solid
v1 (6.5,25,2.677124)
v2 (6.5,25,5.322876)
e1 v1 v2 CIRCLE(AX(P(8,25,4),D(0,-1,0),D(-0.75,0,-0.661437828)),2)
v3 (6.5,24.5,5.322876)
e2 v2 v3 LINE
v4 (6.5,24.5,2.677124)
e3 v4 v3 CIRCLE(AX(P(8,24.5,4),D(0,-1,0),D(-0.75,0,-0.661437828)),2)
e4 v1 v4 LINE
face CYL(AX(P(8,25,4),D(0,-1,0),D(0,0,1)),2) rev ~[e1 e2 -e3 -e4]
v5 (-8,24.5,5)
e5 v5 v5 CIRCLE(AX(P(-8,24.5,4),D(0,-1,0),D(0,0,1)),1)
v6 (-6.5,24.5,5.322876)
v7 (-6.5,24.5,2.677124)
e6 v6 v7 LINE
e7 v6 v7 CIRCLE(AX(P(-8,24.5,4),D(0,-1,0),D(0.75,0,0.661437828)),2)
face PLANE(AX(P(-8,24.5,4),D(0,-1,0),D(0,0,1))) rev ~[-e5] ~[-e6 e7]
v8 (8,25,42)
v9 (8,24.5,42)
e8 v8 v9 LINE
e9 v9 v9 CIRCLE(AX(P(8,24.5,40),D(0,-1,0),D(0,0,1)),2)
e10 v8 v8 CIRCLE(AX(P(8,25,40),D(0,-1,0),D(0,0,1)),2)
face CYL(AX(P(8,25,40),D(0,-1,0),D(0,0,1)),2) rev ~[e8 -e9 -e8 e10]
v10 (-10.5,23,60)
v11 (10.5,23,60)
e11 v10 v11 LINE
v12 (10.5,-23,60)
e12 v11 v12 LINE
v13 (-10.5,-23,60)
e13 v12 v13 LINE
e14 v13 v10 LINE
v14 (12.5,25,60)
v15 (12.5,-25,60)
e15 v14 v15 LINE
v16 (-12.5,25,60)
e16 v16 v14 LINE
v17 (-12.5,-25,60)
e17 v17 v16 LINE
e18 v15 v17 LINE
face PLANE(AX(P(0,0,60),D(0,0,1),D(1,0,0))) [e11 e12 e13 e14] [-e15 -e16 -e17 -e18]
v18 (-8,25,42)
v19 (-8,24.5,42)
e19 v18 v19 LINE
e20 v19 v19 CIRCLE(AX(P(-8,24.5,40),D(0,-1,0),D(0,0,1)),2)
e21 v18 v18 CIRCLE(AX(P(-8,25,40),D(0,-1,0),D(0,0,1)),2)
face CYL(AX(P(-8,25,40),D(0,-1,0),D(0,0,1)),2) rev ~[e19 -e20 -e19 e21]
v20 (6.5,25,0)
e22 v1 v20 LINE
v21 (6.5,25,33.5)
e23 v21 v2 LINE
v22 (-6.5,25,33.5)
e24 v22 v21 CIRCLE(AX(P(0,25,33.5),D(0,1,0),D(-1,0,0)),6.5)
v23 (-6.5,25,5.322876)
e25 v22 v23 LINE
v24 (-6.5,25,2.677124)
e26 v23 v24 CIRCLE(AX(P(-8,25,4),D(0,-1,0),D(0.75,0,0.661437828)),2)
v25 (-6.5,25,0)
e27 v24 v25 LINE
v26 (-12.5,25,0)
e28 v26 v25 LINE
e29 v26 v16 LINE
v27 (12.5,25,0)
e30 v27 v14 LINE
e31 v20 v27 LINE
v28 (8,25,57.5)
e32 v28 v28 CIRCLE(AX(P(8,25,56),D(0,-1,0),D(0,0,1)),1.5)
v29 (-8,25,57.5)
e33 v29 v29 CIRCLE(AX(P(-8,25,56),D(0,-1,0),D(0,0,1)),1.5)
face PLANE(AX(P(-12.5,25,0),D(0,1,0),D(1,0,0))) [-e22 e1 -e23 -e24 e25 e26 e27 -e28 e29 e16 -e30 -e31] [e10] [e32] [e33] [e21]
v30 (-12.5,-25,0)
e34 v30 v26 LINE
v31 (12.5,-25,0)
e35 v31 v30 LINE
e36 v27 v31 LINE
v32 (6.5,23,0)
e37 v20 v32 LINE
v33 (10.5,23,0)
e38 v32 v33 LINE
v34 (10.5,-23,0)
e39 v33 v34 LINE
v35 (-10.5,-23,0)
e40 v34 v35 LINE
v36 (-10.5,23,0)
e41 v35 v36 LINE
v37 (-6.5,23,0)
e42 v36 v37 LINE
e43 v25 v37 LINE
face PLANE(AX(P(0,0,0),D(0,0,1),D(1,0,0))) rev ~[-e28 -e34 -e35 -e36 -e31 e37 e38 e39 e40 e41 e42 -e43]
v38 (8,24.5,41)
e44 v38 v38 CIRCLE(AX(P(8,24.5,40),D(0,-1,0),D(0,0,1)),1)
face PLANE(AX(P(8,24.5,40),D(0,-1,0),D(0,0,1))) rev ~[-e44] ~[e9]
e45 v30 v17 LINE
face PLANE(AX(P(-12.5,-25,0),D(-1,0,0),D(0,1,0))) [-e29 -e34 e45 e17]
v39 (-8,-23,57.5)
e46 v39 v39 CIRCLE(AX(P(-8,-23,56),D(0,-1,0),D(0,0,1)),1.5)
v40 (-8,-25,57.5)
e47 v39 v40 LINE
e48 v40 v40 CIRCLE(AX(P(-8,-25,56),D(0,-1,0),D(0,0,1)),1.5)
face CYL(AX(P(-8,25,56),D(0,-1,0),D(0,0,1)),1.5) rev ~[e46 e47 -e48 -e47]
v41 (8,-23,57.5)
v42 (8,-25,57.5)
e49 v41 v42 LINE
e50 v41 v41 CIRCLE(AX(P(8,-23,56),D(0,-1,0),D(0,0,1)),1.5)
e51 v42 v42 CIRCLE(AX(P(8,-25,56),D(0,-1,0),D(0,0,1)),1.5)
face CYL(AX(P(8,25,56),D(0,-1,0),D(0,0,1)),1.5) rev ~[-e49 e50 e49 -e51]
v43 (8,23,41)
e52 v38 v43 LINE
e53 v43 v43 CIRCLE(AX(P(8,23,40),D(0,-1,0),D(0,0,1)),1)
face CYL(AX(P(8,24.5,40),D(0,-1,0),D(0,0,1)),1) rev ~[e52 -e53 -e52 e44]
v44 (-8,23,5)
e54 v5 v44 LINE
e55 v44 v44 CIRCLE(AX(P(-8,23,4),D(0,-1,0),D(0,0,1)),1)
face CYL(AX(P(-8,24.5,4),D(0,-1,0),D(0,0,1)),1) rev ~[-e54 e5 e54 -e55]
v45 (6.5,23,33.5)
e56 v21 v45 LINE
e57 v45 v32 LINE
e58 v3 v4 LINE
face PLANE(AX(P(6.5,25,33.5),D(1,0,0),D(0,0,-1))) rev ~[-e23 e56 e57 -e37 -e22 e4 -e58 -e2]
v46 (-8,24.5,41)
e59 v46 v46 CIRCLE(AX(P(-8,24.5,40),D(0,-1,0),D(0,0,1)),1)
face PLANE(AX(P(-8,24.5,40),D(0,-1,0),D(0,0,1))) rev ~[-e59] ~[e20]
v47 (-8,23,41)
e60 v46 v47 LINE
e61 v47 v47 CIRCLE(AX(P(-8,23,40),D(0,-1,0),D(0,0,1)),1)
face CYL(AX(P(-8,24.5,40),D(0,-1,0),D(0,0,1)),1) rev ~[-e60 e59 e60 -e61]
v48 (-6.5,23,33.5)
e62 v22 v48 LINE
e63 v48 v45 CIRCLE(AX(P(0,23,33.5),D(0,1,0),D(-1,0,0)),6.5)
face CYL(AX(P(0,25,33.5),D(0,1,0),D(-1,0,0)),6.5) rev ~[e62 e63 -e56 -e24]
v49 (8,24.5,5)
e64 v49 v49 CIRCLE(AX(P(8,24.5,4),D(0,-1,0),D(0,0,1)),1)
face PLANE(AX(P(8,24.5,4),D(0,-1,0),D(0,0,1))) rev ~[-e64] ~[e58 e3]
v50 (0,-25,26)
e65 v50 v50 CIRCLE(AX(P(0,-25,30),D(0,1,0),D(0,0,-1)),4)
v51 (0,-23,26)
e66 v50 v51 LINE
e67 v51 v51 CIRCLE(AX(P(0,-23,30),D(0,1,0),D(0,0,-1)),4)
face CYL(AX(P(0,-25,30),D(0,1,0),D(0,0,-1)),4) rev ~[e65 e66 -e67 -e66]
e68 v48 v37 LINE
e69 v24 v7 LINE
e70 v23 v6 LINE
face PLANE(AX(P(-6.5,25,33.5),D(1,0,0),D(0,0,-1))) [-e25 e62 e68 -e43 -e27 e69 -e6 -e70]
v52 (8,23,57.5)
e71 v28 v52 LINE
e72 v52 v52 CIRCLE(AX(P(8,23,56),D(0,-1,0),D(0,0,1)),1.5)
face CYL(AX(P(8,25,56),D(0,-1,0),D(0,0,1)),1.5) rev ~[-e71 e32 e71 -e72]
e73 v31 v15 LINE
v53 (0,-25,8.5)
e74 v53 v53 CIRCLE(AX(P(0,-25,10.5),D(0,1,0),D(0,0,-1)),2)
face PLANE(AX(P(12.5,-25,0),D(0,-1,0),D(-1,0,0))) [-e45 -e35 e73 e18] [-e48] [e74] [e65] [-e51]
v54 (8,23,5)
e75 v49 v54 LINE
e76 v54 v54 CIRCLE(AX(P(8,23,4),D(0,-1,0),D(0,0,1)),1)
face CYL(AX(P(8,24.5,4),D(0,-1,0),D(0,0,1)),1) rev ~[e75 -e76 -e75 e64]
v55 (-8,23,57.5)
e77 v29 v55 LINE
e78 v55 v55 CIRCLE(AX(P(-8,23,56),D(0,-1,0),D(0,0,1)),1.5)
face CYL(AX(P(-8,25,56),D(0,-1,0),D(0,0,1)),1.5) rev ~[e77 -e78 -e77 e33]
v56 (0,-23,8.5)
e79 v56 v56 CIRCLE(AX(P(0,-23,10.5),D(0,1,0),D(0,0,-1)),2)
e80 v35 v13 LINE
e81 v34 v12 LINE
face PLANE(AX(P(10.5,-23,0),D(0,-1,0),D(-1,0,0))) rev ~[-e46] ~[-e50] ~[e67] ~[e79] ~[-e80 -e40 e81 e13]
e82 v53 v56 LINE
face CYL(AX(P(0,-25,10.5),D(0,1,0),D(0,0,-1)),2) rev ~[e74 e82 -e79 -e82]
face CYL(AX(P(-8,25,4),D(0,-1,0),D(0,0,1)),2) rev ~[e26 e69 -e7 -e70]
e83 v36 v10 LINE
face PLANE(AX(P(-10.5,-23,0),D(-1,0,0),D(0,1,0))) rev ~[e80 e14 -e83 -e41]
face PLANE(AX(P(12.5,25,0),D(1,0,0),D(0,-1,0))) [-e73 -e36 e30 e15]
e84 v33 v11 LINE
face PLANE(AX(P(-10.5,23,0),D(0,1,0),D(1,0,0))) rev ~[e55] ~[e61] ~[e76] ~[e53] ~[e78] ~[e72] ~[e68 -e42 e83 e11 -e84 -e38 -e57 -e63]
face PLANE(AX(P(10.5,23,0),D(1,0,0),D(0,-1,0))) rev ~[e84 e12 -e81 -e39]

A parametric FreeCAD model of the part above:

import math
import FreeCAD as App
import Part
import Sketcher
from FreeCAD import Vector
Q = App.Units.Quantity


def add_polygon(sketch, points):
    """Adds a closed chain of lines whose ends are joined by coincident constraints."""
    first, n = sketch.GeometryCount, len(points)
    for a, b in zip(points, points[1:] + points[:1]):
        sketch.addGeometry(Part.LineSegment(App.Vector(*a, 0), App.Vector(*b, 0)), False)
    for i in range(n):
        sketch.addConstraint(Sketcher.Constraint("Coincident", first + i, 2, first + (i + 1) % n, 1))

doc = App.newDocument("Part")
params = doc.addObject("Spreadsheet::Sheet", "Params")
for row, (alias, value) in enumerate([
    ("sketch1_width", "25 mm"),
    ("sketch1_width2", "21 mm"),
    ("sketch1_height", "50 mm"),
    ("sketch1_height2", "46 mm"),
    ("pad1_length", "60 mm"),
    ("sketch2_radius", "6.5 mm"),
    ("sketch2_height", "33.5 mm"),
    ("pocket1_length", "2 mm"),
    ("sketch3_diameter", "2 mm"),
    ("hole_diameter", "2 mm"),
    ("hole_depth", "2 mm"),
    ("hole_cbore_diameter", "4 mm"),
    ("hole_cbore_depth", "0.5 mm"),
    ("sketch4_diameter", "4 mm"),
    ("hole2_diameter", "4 mm"),
    ("sketch5_diameter", "3 mm"),
    ("hole3_diameter", "3 mm"),
    ("sketch6_diameter", "8 mm"),
    ("hole4_diameter", "8 mm"),
], start=1):
    params.set(f"A{row}", alias)
    params.set(f"B{row}", "=" + value)
    params.setAlias(f"B{row}", alias)

body = doc.addObject("PartDesign::Body", "Body")

# Sketch on XY plane
sketch1 = doc.addObject("Sketcher::SketchObject", "Sketch")
body.addObject(sketch1)
sketch1.AttachmentSupport = (doc.XY_Plane, [""])
sketch1.MapMode = "FlatFace"
add_polygon(sketch1, [(12.5, 25), (-12.5, 25), (-12.5, -25), (12.5, -25)])  # lines 0-3
add_polygon(sketch1, [(-10.5, -23), (-10.5, 23), (10.5, 23), (10.5, -23)])  # lines 4-7
sketch1.addConstraint([
    Sketcher.Constraint("Horizontal", 0),
    Sketcher.Constraint("Vertical", 1),
    Sketcher.Constraint("Horizontal", 2),
    Sketcher.Constraint("Vertical", 3),
    Sketcher.Constraint("Vertical", 4),
    Sketcher.Constraint("Horizontal", 5),
    Sketcher.Constraint("Vertical", 6),
    Sketcher.Constraint("Horizontal", 7),
    Sketcher.Constraint("Symmetric", 0, 2, 2, 2, -1, 1),
    Sketcher.Constraint("Symmetric", 4, 2, 6, 2, -1, 1),
    Sketcher.Constraint("DistanceX", 0, 2, 0, 1, Q("25 mm")),
    Sketcher.Constraint("DistanceX", 5, 1, 5, 2, Q("21 mm")),
    Sketcher.Constraint("DistanceY", 1, 2, 1, 1, Q("50 mm")),
    Sketcher.Constraint("DistanceY", 4, 1, 4, 2, Q("46 mm")),
])
sketch1.setExpression("Constraints[18]", "Params.sketch1_width")
sketch1.setExpression("Constraints[19]", "Params.sketch1_width2")
sketch1.setExpression("Constraints[20]", "Params.sketch1_height")
sketch1.setExpression("Constraints[21]", "Params.sketch1_height2")
pad1 = doc.addObject("PartDesign::Pad", "Pad")
body.addObject(pad1)
pad1.Profile = sketch1
pad1.setExpression("Length", "Params.pad1_length")

# Sketch on XZ plane
sketch2 = doc.addObject("Sketcher::SketchObject", "Sketch001")
body.addObject(sketch2)
sketch2.AttachmentSupport = (doc.XZ_Plane, [""])
sketch2.MapMode = "FlatFace"
sketch2.AttachmentOffset = App.Placement(Vector(0, 0, -25), App.Rotation())
sketch2.addGeometry([
    Part.LineSegment(Vector(6.5, 0, 0), Vector(-6.5, 0, 0)),
    Part.LineSegment(Vector(-6.5, 0, 0), Vector(-6.5, 33.5, 0)),
    Part.ArcOfCircle(Part.Circle(Vector(0, 33.5, 0), Vector(0, 0, 1), 6.5), math.radians(0), math.radians(180)),
    Part.LineSegment(Vector(6.5, 33.5, 0), Vector(6.5, 0, 0)),
], False)
sketch2.addConstraint([
    Sketcher.Constraint("Coincident", 0, 2, 1, 1),
    Sketcher.Constraint("Tangent", 1, 2, 2, 2),
    Sketcher.Constraint("Tangent", 2, 1, 3, 1),
    Sketcher.Constraint("Coincident", 3, 2, 0, 1),
    Sketcher.Constraint("Horizontal", 0),
    Sketcher.Constraint("Vertical", 1),
    Sketcher.Constraint("Vertical", 3),
    Sketcher.Constraint("Symmetric", 0, 2, 3, 2, -1, 1),
    Sketcher.Constraint("Radius", 2, Q("6.5 mm")),
    Sketcher.Constraint("DistanceY", 1, 1, 1, 2, Q("33.5 mm")),
])
sketch2.setExpression("Constraints[8]", "Params.sketch2_radius")
sketch2.setExpression("Constraints[9]", "Params.sketch2_height")
pocket1 = doc.addObject("PartDesign::Pocket", "Pocket")
body.addObject(pocket1)
pocket1.Profile = sketch2
pocket1.setExpression("Length", "Params.pocket1_length")
pocket1.Reversed = True

# Sketch on XZ plane
sketch3 = doc.addObject("Sketcher::SketchObject", "Sketch002")
body.addObject(sketch3)
sketch3.AttachmentSupport = (doc.XZ_Plane, [""])
sketch3.MapMode = "FlatFace"
sketch3.AttachmentOffset = App.Placement(Vector(0, 0, -25), App.Rotation())
sketch3.addGeometry([
    Part.Circle(Vector(-8, 4, 0), Vector(0, 0, 1), 1),
    Part.Circle(Vector(8, 4, 0), Vector(0, 0, 1), 1),
    Part.Circle(Vector(8, 40, 0), Vector(0, 0, 1), 1),
    Part.Circle(Vector(-8, 40, 0), Vector(0, 0, 1), 1),
], False)
sketch3.addConstraint([
    Sketcher.Constraint("Equal", 0, 1),
    Sketcher.Constraint("Equal", 1, 2),
    Sketcher.Constraint("Equal", 2, 3),
    Sketcher.Constraint("Symmetric", 0, 3, 1, 3, -2),
    Sketcher.Constraint("Symmetric", 2, 3, 3, 3, -2),
    Sketcher.Constraint("Vertical", 1, 3, 2, 3),
    Sketcher.Constraint("Diameter", 0, Q("2 mm")),
    Sketcher.Constraint("DistanceX", 0, 3, -1, 1, Q("8 mm")),
    Sketcher.Constraint("DistanceY", -1, 1, 0, 3, Q("4 mm")),
    Sketcher.Constraint("DistanceY", -1, 1, 2, 3, Q("40 mm")),
])
sketch3.setExpression("Constraints[6]", "Params.sketch3_diameter")
doc.recompute()
hole = doc.addObject("PartDesign::Hole", "Hole")
body.addObject(hole)
hole.Profile = sketch3
hole.ThreadType = "None"
hole.setExpression("Diameter", "Params.hole_diameter")
hole.DepthType = "Dimension"
hole.setExpression("Depth", "Params.hole_depth")
hole.DrillPoint = "Angled"
hole.DrillPointAngle = 118
hole.HoleCutType = "Counterbore"
hole.setExpression("HoleCutDiameter", "Params.hole_cbore_diameter")
hole.setExpression("HoleCutDepth", "Params.hole_cbore_depth")
hole.Reversed = True

# Sketch on XZ plane
sketch4 = doc.addObject("Sketcher::SketchObject", "Sketch003")
body.addObject(sketch4)
sketch4.AttachmentSupport = (doc.XZ_Plane, [""])
sketch4.MapMode = "FlatFace"
sketch4.AttachmentOffset = App.Placement(Vector(0, 0, 25), App.Rotation())
sketch4.addGeometry(Part.Circle(Vector(0, 10.5, 0), Vector(0, 0, 1), 2), False)
sketch4.addConstraint([
    Sketcher.Constraint("PointOnObject", 0, 3, -2),
    Sketcher.Constraint("Diameter", 0, Q("4 mm")),
    Sketcher.Constraint("DistanceY", -1, 1, 0, 3, Q("10.5 mm")),
])
sketch4.setExpression("Constraints[1]", "Params.sketch4_diameter")
doc.recompute()
hole2 = doc.addObject("PartDesign::Hole", "Hole001")
body.addObject(hole2)
hole2.Profile = sketch4
hole2.ThreadType = "None"
hole2.setExpression("Diameter", "Params.hole2_diameter")
hole2.DepthType = "ThroughAll"

# Sketch on XZ plane
sketch5 = doc.addObject("Sketcher::SketchObject", "Sketch004")
body.addObject(sketch5)
sketch5.AttachmentSupport = (doc.XZ_Plane, [""])
sketch5.MapMode = "FlatFace"
sketch5.AttachmentOffset = App.Placement(Vector(0, 0, -25), App.Rotation())
sketch5.addGeometry([
    Part.Circle(Vector(-8, 56, 0), Vector(0, 0, 1), 1.5),
    Part.Circle(Vector(8, 56, 0), Vector(0, 0, 1), 1.5),
], False)
sketch5.addConstraint([
    Sketcher.Constraint("Equal", 0, 1),
    Sketcher.Constraint("Symmetric", 0, 3, 1, 3, -2),
    Sketcher.Constraint("Diameter", 0, Q("3 mm")),
    Sketcher.Constraint("DistanceX", 0, 3, -1, 1, Q("8 mm")),
    Sketcher.Constraint("DistanceY", -1, 1, 0, 3, Q("56 mm")),
])
sketch5.setExpression("Constraints[2]", "Params.sketch5_diameter")
doc.recompute()
hole3 = doc.addObject("PartDesign::Hole", "Hole002")
body.addObject(hole3)
hole3.Profile = sketch5
hole3.ThreadType = "None"
hole3.setExpression("Diameter", "Params.hole3_diameter")
hole3.DepthType = "ThroughAll"
hole3.Reversed = True

# Sketch on XZ plane
sketch6 = doc.addObject("Sketcher::SketchObject", "Sketch005")
body.addObject(sketch6)
sketch6.AttachmentSupport = (doc.XZ_Plane, [""])
sketch6.MapMode = "FlatFace"
sketch6.AttachmentOffset = App.Placement(Vector(0, 0, 25), App.Rotation())
sketch6.addGeometry(Part.Circle(Vector(0, 30, 0), Vector(0, 0, 1), 4), False)
sketch6.addConstraint([
    Sketcher.Constraint("PointOnObject", 0, 3, -2),
    Sketcher.Constraint("Diameter", 0, Q("8 mm")),
    Sketcher.Constraint("DistanceY", -1, 1, 0, 3, Q("30 mm")),
])
sketch6.setExpression("Constraints[1]", "Params.sketch6_diameter")
doc.recompute()
hole4 = doc.addObject("PartDesign::Hole", "Hole003")
body.addObject(hole4)
hole4.Profile = sketch6
hole4.ThreadType = "None"
hole4.setExpression("Diameter", "Params.hole4_diameter")
hole4.DepthType = "ThroughAll"

doc.recompute()
